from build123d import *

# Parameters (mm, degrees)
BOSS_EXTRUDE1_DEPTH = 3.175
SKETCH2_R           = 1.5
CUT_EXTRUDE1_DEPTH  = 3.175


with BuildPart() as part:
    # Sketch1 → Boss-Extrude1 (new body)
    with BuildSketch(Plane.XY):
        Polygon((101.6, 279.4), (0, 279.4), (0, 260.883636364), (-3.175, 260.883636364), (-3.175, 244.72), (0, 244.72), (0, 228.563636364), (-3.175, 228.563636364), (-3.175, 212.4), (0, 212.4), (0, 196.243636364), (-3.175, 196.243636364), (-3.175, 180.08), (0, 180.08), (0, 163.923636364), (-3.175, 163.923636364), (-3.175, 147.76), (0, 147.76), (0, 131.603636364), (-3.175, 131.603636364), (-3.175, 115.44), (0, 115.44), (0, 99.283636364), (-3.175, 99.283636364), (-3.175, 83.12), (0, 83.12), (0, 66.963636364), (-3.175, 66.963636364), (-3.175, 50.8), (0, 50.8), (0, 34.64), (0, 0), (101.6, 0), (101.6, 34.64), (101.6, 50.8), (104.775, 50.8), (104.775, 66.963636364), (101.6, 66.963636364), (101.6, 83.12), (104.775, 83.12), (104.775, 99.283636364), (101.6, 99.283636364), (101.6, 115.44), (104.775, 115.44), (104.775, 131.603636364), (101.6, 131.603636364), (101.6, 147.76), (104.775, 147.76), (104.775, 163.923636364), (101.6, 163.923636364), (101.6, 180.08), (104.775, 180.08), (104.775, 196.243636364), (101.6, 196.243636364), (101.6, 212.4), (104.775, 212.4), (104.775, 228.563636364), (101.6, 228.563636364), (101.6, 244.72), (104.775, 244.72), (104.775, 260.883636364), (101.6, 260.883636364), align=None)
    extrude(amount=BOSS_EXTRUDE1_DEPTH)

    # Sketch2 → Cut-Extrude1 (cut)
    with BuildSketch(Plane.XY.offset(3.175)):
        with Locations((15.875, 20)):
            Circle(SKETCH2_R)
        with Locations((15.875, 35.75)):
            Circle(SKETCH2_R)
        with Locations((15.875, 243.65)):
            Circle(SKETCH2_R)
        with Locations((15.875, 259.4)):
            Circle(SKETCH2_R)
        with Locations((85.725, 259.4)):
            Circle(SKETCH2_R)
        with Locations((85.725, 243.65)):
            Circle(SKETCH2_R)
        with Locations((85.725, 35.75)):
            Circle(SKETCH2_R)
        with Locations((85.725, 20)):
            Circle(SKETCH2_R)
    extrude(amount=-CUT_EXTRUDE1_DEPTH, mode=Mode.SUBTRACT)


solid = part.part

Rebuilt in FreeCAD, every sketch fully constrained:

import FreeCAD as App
import Part
import Sketcher

V = App.Vector
Q = App.Units.Quantity

doc = App.newDocument("Part")
params = doc.addObject("Spreadsheet::Sheet", "Params")
for row, (alias, value) in enumerate([
    ("sketch1_width", "4 in"),
    ("sketch1_height", "2 in"),
    ("sketch1_width2", "0.125 in"),
    ("pad1_length", "0.125 in"),
    ("pocket1_length", "0.125 in"),
], start=1):
    params.set(f"A{row}", alias)
    params.set(f"B{row}", "=" + value)
    params.setAlias(f"B{row}", alias)

body = doc.addObject("PartDesign::Body", "Body")

# Sketch on XY plane
sketch1 = body.newObject("Sketcher::SketchObject", "Sketch")
sketch1.AttachmentSupport = (doc.getObject("XY_Plane"), [""])
sketch1.MapMode = "FlatFace"
sketch1.addGeometry([
    Part.LineSegment(V(101.6, 279.4, 0), V(0, 279.4, 0)),  # 0
    Part.LineSegment(V(0, 279.4, 0), V(0, 260.9, 0)),  # 1
    Part.LineSegment(V(0, 260.9, 0), V(-3.2, 260.9, 0)),  # 2
    Part.LineSegment(V(-3.2, 260.9, 0), V(-3.2, 244.7, 0)),  # 3
    Part.LineSegment(V(-3.2, 244.7, 0), V(0, 244.7, 0)),  # 4
    Part.LineSegment(V(0, 244.7, 0), V(0, 228.6, 0)),  # 5
    Part.LineSegment(V(0, 228.6, 0), V(-3.2, 228.6, 0)),  # 6
    Part.LineSegment(V(-3.2, 228.6, 0), V(-3.2, 212.4, 0)),  # 7
    Part.LineSegment(V(-3.2, 212.4, 0), V(0, 212.4, 0)),  # 8
    Part.LineSegment(V(0, 212.4, 0), V(0, 196.2, 0)),  # 9
    Part.LineSegment(V(0, 196.2, 0), V(-3.2, 196.2, 0)),  # 10
    Part.LineSegment(V(-3.2, 196.2, 0), V(-3.2, 180.1, 0)),  # 11
    Part.LineSegment(V(-3.2, 180.1, 0), V(0, 180.1, 0)),  # 12
    Part.LineSegment(V(0, 180.1, 0), V(0, 163.9, 0)),  # 13
    Part.LineSegment(V(0, 163.9, 0), V(-3.2, 163.9, 0)),  # 14
    Part.LineSegment(V(-3.2, 163.9, 0), V(-3.2, 147.8, 0)),  # 15
    Part.LineSegment(V(-3.2, 147.8, 0), V(0, 147.8, 0)),  # 16
    Part.LineSegment(V(0, 147.8, 0), V(0, 131.6, 0)),  # 17
    Part.LineSegment(V(0, 131.6, 0), V(-3.2, 131.6, 0)),  # 18
    Part.LineSegment(V(-3.2, 131.6, 0), V(-3.2, 115.4, 0)),  # 19
    Part.LineSegment(V(-3.2, 115.4, 0), V(0, 115.4, 0)),  # 20
    Part.LineSegment(V(0, 115.4, 0), V(0, 99.3, 0)),  # 21
    Part.LineSegment(V(0, 99.3, 0), V(-3.2, 99.3, 0)),  # 22
    Part.LineSegment(V(-3.2, 99.3, 0), V(-3.2, 83.1, 0)),  # 23
    Part.LineSegment(V(-3.2, 83.1, 0), V(0, 83.1, 0)),  # 24
    Part.LineSegment(V(0, 83.1, 0), V(0, 67, 0)),  # 25
    Part.LineSegment(V(0, 67, 0), V(-3.2, 67, 0)),  # 26
    Part.LineSegment(V(-3.2, 67, 0), V(-3.2, 50.8, 0)),  # 27
    Part.LineSegment(V(-3.2, 50.8, 0), V(0, 50.8, 0)),  # 28
    Part.LineSegment(V(0, 50.8, 0), V(0, 0, 0)),  # 29
    Part.LineSegment(V(0, 0, 0), V(101.6, 0, 0)),  # 30
    Part.LineSegment(V(101.6, 0, 0), V(101.6, 50.8, 0)),  # 31
    Part.LineSegment(V(101.6, 50.8, 0), V(104.8, 50.8, 0)),  # 32
    Part.LineSegment(V(104.8, 50.8, 0), V(104.8, 67, 0)),  # 33
    Part.LineSegment(V(104.8, 67, 0), V(101.6, 67, 0)),  # 34
    Part.LineSegment(V(101.6, 67, 0), V(101.6, 83.1, 0)),  # 35
    Part.LineSegment(V(101.6, 83.1, 0), V(104.8, 83.1, 0)),  # 36
    Part.LineSegment(V(104.8, 83.1, 0), V(104.8, 99.3, 0)),  # 37
    Part.LineSegment(V(104.8, 99.3, 0), V(101.6, 99.3, 0)),  # 38
    Part.LineSegment(V(101.6, 99.3, 0), V(101.6, 115.4, 0)),  # 39
    Part.LineSegment(V(101.6, 115.4, 0), V(104.8, 115.4, 0)),  # 40
    Part.LineSegment(V(104.8, 115.4, 0), V(104.8, 131.6, 0)),  # 41
    Part.LineSegment(V(104.8, 131.6, 0), V(101.6, 131.6, 0)),  # 42
    Part.LineSegment(V(101.6, 131.6, 0), V(101.6, 147.8, 0)),  # 43
    Part.LineSegment(V(101.6, 147.8, 0), V(104.8, 147.8, 0)),  # 44
    Part.LineSegment(V(104.8, 147.8, 0), V(104.8, 163.9, 0)),  # 45
    Part.LineSegment(V(104.8, 163.9, 0), V(101.6, 163.9, 0)),  # 46
    Part.LineSegment(V(101.6, 163.9, 0), V(101.6, 180.1, 0)),  # 47
    Part.LineSegment(V(101.6, 180.1, 0), V(104.8, 180.1, 0)),  # 48
    Part.LineSegment(V(104.8, 180.1, 0), V(104.8, 196.2, 0)),  # 49
    Part.LineSegment(V(104.8, 196.2, 0), V(101.6, 196.2, 0)),  # 50
    Part.LineSegment(V(101.6, 196.2, 0), V(101.6, 212.4, 0)),  # 51
    Part.LineSegment(V(101.6, 212.4, 0), V(104.8, 212.4, 0)),  # 52
    Part.LineSegment(V(104.8, 212.4, 0), V(104.8, 228.6, 0)),  # 53
    Part.LineSegment(V(104.8, 228.6, 0), V(101.6, 228.6, 0)),  # 54
    Part.LineSegment(V(101.6, 228.6, 0), V(101.6, 244.7, 0)),  # 55
    Part.LineSegment(V(101.6, 244.7, 0), V(104.8, 244.7, 0)),  # 56
    Part.LineSegment(V(104.8, 244.7, 0), V(104.8, 260.9, 0)),  # 57
    Part.LineSegment(V(104.8, 260.9, 0), V(101.6, 260.9, 0)),  # 58
    Part.LineSegment(V(101.6, 260.9, 0), V(101.6, 279.4, 0)),  # 59
], False)
sketch1.addConstraint([
    Sketcher.Constraint("Coincident", 0, 2, 1, 1),
    Sketcher.Constraint("Coincident", 1, 2, 2, 1),
    Sketcher.Constraint("Coincident", 2, 2, 3, 1),
    Sketcher.Constraint("Coincident", 3, 2, 4, 1),
    Sketcher.Constraint("Coincident", 4, 2, 5, 1),
    Sketcher.Constraint("Coincident", 5, 2, 6, 1),
    Sketcher.Constraint("Coincident", 6, 2, 7, 1),
    Sketcher.Constraint("Coincident", 7, 2, 8, 1),
    Sketcher.Constraint("Coincident", 8, 2, 9, 1),
    Sketcher.Constraint("Coincident", 9, 2, 10, 1),
    Sketcher.Constraint("Coincident", 10, 2, 11, 1),
    Sketcher.Constraint("Coincident", 11, 2, 12, 1),
    Sketcher.Constraint("Coincident", 12, 2, 13, 1),
    Sketcher.Constraint("Coincident", 13, 2, 14, 1),
    Sketcher.Constraint("Coincident", 14, 2, 15, 1),
    Sketcher.Constraint("Coincident", 15, 2, 16, 1),
    Sketcher.Constraint("Coincident", 16, 2, 17, 1),
    Sketcher.Constraint("Coincident", 17, 2, 18, 1),
    Sketcher.Constraint("Coincident", 18, 2, 19, 1),
    Sketcher.Constraint("Coincident", 19, 2, 20, 1),
    Sketcher.Constraint("Coincident", 20, 2, 21, 1),
    Sketcher.Constraint("Coincident", 21, 2, 22, 1),
    Sketcher.Constraint("Coincident", 22, 2, 23, 1),
    Sketcher.Constraint("Coincident", 23, 2, 24, 1),
    Sketcher.Constraint("Coincident", 24, 2, 25, 1),
    Sketcher.Constraint("Coincident", 25, 2, 26, 1),
    Sketcher.Constraint("Coincident", 26, 2, 27, 1),
    Sketcher.Constraint("Coincident", 27, 2, 28, 1),
    Sketcher.Constraint("Coincident", 28, 2, 29, 1),
    Sketcher.Constraint("Coincident", 29, 2, 30, 1),
    Sketcher.Constraint("Coincident", 30, 2, 31, 1),
    Sketcher.Constraint("Coincident", 31, 2, 32, 1),
    Sketcher.Constraint("Coincident", 32, 2, 33, 1),
    Sketcher.Constraint("Coincident", 33, 2, 34, 1),
    Sketcher.Constraint("Coincident", 34, 2, 35, 1),
    Sketcher.Constraint("Coincident", 35, 2, 36, 1),
    Sketcher.Constraint("Coincident", 36, 2, 37, 1),
    Sketcher.Constraint("Coincident", 37, 2, 38, 1),
    Sketcher.Constraint("Coincident", 38, 2, 39, 1),
    Sketcher.Constraint("Coincident", 39, 2, 40, 1),
    Sketcher.Constraint("Coincident", 40, 2, 41, 1),
    Sketcher.Constraint("Coincident", 41, 2, 42, 1),
    Sketcher.Constraint("Coincident", 42, 2, 43, 1),
    Sketcher.Constraint("Coincident", 43, 2, 44, 1),
    Sketcher.Constraint("Coincident", 44, 2, 45, 1),
    Sketcher.Constraint("Coincident", 45, 2, 46, 1),
    Sketcher.Constraint("Coincident", 46, 2, 47, 1),
    Sketcher.Constraint("Coincident", 47, 2, 48, 1),
    Sketcher.Constraint("Coincident", 48, 2, 49, 1),
    Sketcher.Constraint("Coincident", 49, 2, 50, 1),
    Sketcher.Constraint("Coincident", 50, 2, 51, 1),
    Sketcher.Constraint("Coincident", 51, 2, 52, 1),
    Sketcher.Constraint("Coincident", 52, 2, 53, 1),
    Sketcher.Constraint("Coincident", 53, 2, 54, 1),
    Sketcher.Constraint("Coincident", 54, 2, 55, 1),
    Sketcher.Constraint("Coincident", 55, 2, 56, 1),
    Sketcher.Constraint("Coincident", 56, 2, 57, 1),
    Sketcher.Constraint("Coincident", 57, 2, 58, 1),
    Sketcher.Constraint("Coincident", 58, 2, 59, 1),
    Sketcher.Constraint("Coincident", 59, 2, 0, 1),
    Sketcher.Constraint("Horizontal", 0),
    Sketcher.Constraint("Vertical", 1),
    Sketcher.Constraint("Horizontal", 2),
    Sketcher.Constraint("Vertical", 3),
    Sketcher.Constraint("Horizontal", 4),
    Sketcher.Constraint("Vertical", 5),
    Sketcher.Constraint("Horizontal", 6),
    Sketcher.Constraint("Vertical", 7),
    Sketcher.Constraint("Horizontal", 8),
    Sketcher.Constraint("Vertical", 9),
    Sketcher.Constraint("Horizontal", 10),
    Sketcher.Constraint("Vertical", 11),
    Sketcher.Constraint("Horizontal", 12),
    Sketcher.Constraint("Vertical", 13),
    Sketcher.Constraint("Horizontal", 14),
    Sketcher.Constraint("Vertical", 15),
    Sketcher.Constraint("Horizontal", 16),
    Sketcher.Constraint("Vertical", 17),
    Sketcher.Constraint("Horizontal", 18),
    Sketcher.Constraint("Vertical", 19),
    Sketcher.Constraint("Horizontal", 20),
    Sketcher.Constraint("Vertical", 21),
    Sketcher.Constraint("Horizontal", 22),
    Sketcher.Constraint("Vertical", 23),
    Sketcher.Constraint("Horizontal", 24),
    Sketcher.Constraint("Vertical", 25),
    Sketcher.Constraint("Horizontal", 26),
    Sketcher.Constraint("Vertical", 27),
    Sketcher.Constraint("Horizontal", 28),
    Sketcher.Constraint("Vertical", 29),
    Sketcher.Constraint("Horizontal", 30),
    Sketcher.Constraint("Vertical", 31),
    Sketcher.Constraint("Horizontal", 32),
    Sketcher.Constraint("Vertical", 33),
    Sketcher.Constraint("Horizontal", 34),
    Sketcher.Constraint("Vertical", 35),
    Sketcher.Constraint("Horizontal", 36),
    Sketcher.Constraint("Vertical", 37),
    Sketcher.Constraint("Horizontal", 38),
    Sketcher.Constraint("Vertical", 39),
    Sketcher.Constraint("Horizontal", 40),
    Sketcher.Constraint("Vertical", 41),
    Sketcher.Constraint("Horizontal", 42),
    Sketcher.Constraint("Vertical", 43),
    Sketcher.Constraint("Horizontal", 44),
    Sketcher.Constraint("Vertical", 45),
    Sketcher.Constraint("Horizontal", 46),
    Sketcher.Constraint("Vertical", 47),
    Sketcher.Constraint("Horizontal", 48),
    Sketcher.Constraint("Vertical", 49),
    Sketcher.Constraint("Horizontal", 50),
    Sketcher.Constraint("Vertical", 51),
    Sketcher.Constraint("Horizontal", 52),
    Sketcher.Constraint("Vertical", 53),
    Sketcher.Constraint("Horizontal", 54),
    Sketcher.Constraint("Vertical", 55),
    Sketcher.Constraint("Horizontal", 56),
    Sketcher.Constraint("Vertical", 57),
    Sketcher.Constraint("Horizontal", 58),
    Sketcher.Constraint("Vertical", 59),
    Sketcher.Constraint("Coincident", 29, 2, -1, 1),
    Sketcher.Constraint("PointOnObject", 0, 2, -2),
    Sketcher.Constraint("PointOnObject", 4, 2, -2),
    Sketcher.Constraint("PointOnObject", 8, 2, -2),
    Sketcher.Constraint("PointOnObject", 12, 2, -2),
    Sketcher.Constraint("PointOnObject", 16, 2, -2),
    Sketcher.Constraint("PointOnObject", 20, 2, -2),
    Sketcher.Constraint("PointOnObject", 24, 2, -2),
    Sketcher.Constraint("Horizontal", 28, 2, 31, 2),
    Sketcher.Constraint("Horizontal", 26, 2, 33, 2),
    Sketcher.Constraint("Horizontal", 24, 2, 35, 2),
    Sketcher.Constraint("Horizontal", 22, 2, 37, 2),
    Sketcher.Constraint("Horizontal", 20, 2, 39, 2),
    Sketcher.Constraint("Horizontal", 18, 2, 41, 2),
    Sketcher.Constraint("Horizontal", 16, 2, 43, 2),
    Sketcher.Constraint("Horizontal", 14, 2, 45, 2),
    Sketcher.Constraint("Horizontal", 12, 2, 47, 2),
    Sketcher.Constraint("Horizontal", 10, 2, 49, 2),
    Sketcher.Constraint("Horizontal", 8, 2, 51, 2),
    Sketcher.Constraint("Horizontal", 6, 2, 53, 2),
    Sketcher.Constraint("Horizontal", 4, 2, 55, 2),
    Sketcher.Constraint("Horizontal", 2, 2, 57, 2),
    Sketcher.Constraint("Vertical", 3, 2, 6, 2),
    Sketcher.Constraint("Vertical", 7, 2, 10, 2),
    Sketcher.Constraint("Vertical", 11, 2, 14, 2),
    Sketcher.Constraint("Vertical", 15, 2, 18, 2),
    Sketcher.Constraint("Vertical", 19, 2, 22, 2),
    Sketcher.Constraint("Vertical", 23, 2, 26, 2),
    Sketcher.Constraint("Vertical", 31, 2, 34, 2),
    Sketcher.Constraint("Vertical", 33, 2, 36, 2),
    Sketcher.Constraint("Vertical", 35, 2, 38, 2),
    Sketcher.Constraint("Vertical", 37, 2, 40, 2),
    Sketcher.Constraint("Vertical", 39, 2, 42, 2),
    Sketcher.Constraint("Vertical", 41, 2, 44, 2),
    Sketcher.Constraint("Vertical", 43, 2, 46, 2),
    Sketcher.Constraint("Vertical", 45, 2, 48, 2),
    Sketcher.Constraint("Vertical", 47, 2, 50, 2),
    Sketcher.Constraint("Vertical", 49, 2, 52, 2),
    Sketcher.Constraint("Vertical", 51, 2, 54, 2),
    Sketcher.Constraint("Vertical", 53, 2, 56, 2),
    Sketcher.Constraint("Vertical", 55, 2, 58, 2),
    Sketcher.Constraint("Equal", 28, 32),
    Sketcher.Constraint("Equal", 3, 7),
    Sketcher.Constraint("Equal", 5, 9),
    Sketcher.Constraint("Equal", 7, 11),
    Sketcher.Constraint("Equal", 9, 13),
    Sketcher.Constraint("Equal", 11, 15),
    Sketcher.Constraint("Equal", 13, 17),
    Sketcher.Constraint("Equal", 15, 19),
    Sketcher.Constraint("Equal", 17, 21),
    Sketcher.Constraint("Equal", 19, 23),
    Sketcher.Constraint("Equal", 21, 25),
    Sketcher.Constraint("Equal", 23, 27),
    Sketcher.Constraint("DistanceX", 0, 2, 0, 1, Q("4 in")),
    Sketcher.Constraint("DistanceY", 29, 2, 29, 1, Q("2 in")),
    Sketcher.Constraint("DistanceY", -1, 1, 0, 2, Q("11 in")),
    Sketcher.Constraint("DistanceX", 2, 2, 2, 1, Q("0.125 in")),
    Sketcher.Constraint("DistanceY", -1, 1, 3, 2, Q("244.72 mm")),
    Sketcher.Constraint("DistanceY", 1, 2, 1, 1, Q("18.516364 mm")),
])
sketch1.setExpression("Constraints[173]", "Params.sketch1_width")
sketch1.setExpression("Constraints[174]", "Params.sketch1_height")
sketch1.setExpression("Constraints[176]", "Params.sketch1_width2")
pad1 = body.newObject("PartDesign::Pad", "Pad")
pad1.Profile = sketch1
pad1.setExpression("Length", "Params.pad1_length")

# Sketch on XY plane
sketch2 = body.newObject("Sketcher::SketchObject", "Sketch001")
sketch2.AttachmentSupport = (doc.getObject("XY_Plane"), [""])
sketch2.MapMode = "FlatFace"
sketch2.AttachmentOffset = App.Placement(V(0, 0, 0.125 * 25.4), App.Rotation())
sketch2.addGeometry([
    Part.Circle(V(15.9, 20, 0), V(0, 0, 1), 1.5),  # 0
    Part.Circle(V(15.9, 35.8, 0), V(0, 0, 1), 1.5),  # 1
    Part.Circle(V(15.9, 243.7, 0), V(0, 0, 1), 1.5),  # 2
    Part.Circle(V(15.9, 259.4, 0), V(0, 0, 1), 1.5),  # 3
    Part.Circle(V(85.7, 259.4, 0), V(0, 0, 1), 1.5),  # 4
    Part.Circle(V(85.7, 243.7, 0), V(0, 0, 1), 1.5),  # 5
    Part.Circle(V(85.7, 35.8, 0), V(0, 0, 1), 1.5),  # 6
    Part.Circle(V(85.7, 20, 0), V(0, 0, 1), 1.5),  # 7
], False)
sketch2.addConstraint([
    Sketcher.Constraint("Equal", 0, 1),
    Sketcher.Constraint("Equal", 1, 2),
    Sketcher.Constraint("Equal", 2, 3),
    Sketcher.Constraint("Equal", 3, 4),
    Sketcher.Constraint("Equal", 4, 5),
    Sketcher.Constraint("Equal", 5, 6),
    Sketcher.Constraint("Equal", 6, 7),
    Sketcher.Constraint("Horizontal", 3, 3, 4, 3),
    Sketcher.Constraint("Horizontal", 2, 3, 5, 3),
    Sketcher.Constraint("Horizontal", 1, 3, 6, 3),
    Sketcher.Constraint("Horizontal", 0, 3, 7, 3),
    Sketcher.Constraint("Vertical", 0, 3, 1, 3),
    Sketcher.Constraint("Vertical", 1, 3, 2, 3),
    Sketcher.Constraint("Vertical", 2, 3, 3, 3),
    Sketcher.Constraint("Vertical", 4, 3, 5, 3),
    Sketcher.Constraint("Vertical", 5, 3, 6, 3),
    Sketcher.Constraint("Vertical", 6, 3, 7, 3),
    Sketcher.Constraint("Diameter", 0, Q("3 mm")),
    Sketcher.Constraint("DistanceX", 3, 3, 4, 3, Q("2.75 in")),
    Sketcher.Constraint("DistanceX", -1, 1, 0, 3, Q("0.625 in")),
    Sketcher.Constraint("DistanceY", -1, 1, 0, 3, Q("20 mm")),
    Sketcher.Constraint("DistanceY", -1, 1, 1, 3, Q("35.75 mm")),
    Sketcher.Constraint("DistanceY", -1, 1, 2, 3, Q("243.65 mm")),
    Sketcher.Constraint("DistanceY", -1, 1, 3, 3, Q("259.4 mm")),
])
pocket1 = body.newObject("PartDesign::Pocket", "Pocket")
pocket1.Profile = sketch2
pocket1.setExpression("Length", "Params.pocket1_length")

doc.recompute()
